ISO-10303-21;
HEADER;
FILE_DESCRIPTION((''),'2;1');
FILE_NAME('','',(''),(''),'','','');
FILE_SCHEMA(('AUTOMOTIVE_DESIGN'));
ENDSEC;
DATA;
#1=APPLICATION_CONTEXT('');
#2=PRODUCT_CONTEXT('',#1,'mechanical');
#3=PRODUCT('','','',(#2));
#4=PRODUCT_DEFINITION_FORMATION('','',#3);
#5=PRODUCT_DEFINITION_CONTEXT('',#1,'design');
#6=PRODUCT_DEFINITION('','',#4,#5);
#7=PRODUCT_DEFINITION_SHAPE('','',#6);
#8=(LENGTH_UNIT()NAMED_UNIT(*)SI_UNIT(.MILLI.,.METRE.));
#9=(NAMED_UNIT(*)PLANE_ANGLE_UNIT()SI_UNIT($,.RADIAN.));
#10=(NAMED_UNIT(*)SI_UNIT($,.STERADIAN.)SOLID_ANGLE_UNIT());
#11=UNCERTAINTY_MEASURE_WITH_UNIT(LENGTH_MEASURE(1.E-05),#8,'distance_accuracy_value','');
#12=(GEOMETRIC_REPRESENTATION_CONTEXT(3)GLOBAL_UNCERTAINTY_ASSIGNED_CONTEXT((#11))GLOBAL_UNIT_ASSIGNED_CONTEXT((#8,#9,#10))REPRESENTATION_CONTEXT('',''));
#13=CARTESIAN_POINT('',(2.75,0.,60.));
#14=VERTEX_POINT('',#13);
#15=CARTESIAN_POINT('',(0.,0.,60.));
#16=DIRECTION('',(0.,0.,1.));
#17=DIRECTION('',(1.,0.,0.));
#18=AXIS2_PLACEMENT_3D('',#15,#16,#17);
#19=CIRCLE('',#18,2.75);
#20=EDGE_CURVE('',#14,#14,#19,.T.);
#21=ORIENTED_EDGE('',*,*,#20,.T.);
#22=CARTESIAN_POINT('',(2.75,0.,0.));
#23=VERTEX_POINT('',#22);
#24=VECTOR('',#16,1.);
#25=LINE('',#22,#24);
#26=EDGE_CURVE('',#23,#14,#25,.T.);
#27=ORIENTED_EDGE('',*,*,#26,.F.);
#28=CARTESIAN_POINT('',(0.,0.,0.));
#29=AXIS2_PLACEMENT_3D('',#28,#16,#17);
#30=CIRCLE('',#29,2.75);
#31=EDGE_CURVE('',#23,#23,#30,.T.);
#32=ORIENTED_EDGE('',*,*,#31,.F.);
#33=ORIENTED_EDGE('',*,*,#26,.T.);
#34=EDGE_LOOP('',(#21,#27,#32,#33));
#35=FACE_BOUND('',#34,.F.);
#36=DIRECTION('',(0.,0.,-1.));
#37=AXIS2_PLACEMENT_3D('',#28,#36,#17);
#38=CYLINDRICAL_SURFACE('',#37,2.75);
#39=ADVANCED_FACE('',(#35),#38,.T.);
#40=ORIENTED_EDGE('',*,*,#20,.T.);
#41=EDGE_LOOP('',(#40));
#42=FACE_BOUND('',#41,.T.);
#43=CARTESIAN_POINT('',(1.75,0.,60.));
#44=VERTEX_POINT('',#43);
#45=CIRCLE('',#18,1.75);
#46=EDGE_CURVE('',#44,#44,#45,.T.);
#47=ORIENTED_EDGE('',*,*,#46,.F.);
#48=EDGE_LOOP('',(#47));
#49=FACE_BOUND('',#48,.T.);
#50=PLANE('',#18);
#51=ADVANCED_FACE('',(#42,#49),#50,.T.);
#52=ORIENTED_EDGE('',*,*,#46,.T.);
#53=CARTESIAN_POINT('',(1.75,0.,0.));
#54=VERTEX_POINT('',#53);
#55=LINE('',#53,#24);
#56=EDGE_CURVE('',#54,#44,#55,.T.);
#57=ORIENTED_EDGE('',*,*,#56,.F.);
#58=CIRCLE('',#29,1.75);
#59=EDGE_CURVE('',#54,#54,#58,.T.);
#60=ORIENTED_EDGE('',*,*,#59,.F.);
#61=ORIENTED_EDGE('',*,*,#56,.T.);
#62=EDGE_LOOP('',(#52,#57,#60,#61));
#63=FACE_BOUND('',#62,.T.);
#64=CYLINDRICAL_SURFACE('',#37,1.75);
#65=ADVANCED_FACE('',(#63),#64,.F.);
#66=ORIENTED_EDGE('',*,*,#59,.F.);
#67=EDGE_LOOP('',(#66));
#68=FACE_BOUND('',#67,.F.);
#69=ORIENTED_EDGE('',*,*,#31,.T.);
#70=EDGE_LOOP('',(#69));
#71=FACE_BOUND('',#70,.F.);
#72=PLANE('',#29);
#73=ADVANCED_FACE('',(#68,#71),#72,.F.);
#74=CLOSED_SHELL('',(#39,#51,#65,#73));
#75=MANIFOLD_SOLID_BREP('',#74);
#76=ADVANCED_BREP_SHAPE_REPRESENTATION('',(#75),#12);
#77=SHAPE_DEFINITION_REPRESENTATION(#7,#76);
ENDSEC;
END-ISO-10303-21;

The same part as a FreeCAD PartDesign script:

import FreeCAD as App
import Part
import Sketcher

V = App.Vector

doc = App.newDocument("Part")
body = doc.addObject("PartDesign::Body", "Body")

sketch1 = body.newObject("Sketcher::SketchObject", "Sketch")
sketch1.AttachmentSupport = (doc.getObject("XY_Plane"), [""])
sketch1.MapMode = "FlatFace"
sketch1.addGeometry(Part.Circle(V(0, 0, 0), V(0, 0, 1), 2.8), False)
sketch1.addGeometry(Part.Circle(V(0, 0, 0), V(0, 0, 1), 1.8), False)
sketch1.addConstraint(Sketcher.Constraint("Coincident", 0, 3, -1, 1))
sketch1.addConstraint(Sketcher.Constraint("Coincident", 1, 3, -1, 1))
sketch1.addConstraint(Sketcher.Constraint("Diameter", 1, 3.5))
sketch1.addConstraint(Sketcher.Constraint("Diameter", 0, 5.5))
pad1 = body.newObject("PartDesign::Pad", "Pad")
pad1.Profile = sketch1
pad1.Length = 60

doc.recompute()
